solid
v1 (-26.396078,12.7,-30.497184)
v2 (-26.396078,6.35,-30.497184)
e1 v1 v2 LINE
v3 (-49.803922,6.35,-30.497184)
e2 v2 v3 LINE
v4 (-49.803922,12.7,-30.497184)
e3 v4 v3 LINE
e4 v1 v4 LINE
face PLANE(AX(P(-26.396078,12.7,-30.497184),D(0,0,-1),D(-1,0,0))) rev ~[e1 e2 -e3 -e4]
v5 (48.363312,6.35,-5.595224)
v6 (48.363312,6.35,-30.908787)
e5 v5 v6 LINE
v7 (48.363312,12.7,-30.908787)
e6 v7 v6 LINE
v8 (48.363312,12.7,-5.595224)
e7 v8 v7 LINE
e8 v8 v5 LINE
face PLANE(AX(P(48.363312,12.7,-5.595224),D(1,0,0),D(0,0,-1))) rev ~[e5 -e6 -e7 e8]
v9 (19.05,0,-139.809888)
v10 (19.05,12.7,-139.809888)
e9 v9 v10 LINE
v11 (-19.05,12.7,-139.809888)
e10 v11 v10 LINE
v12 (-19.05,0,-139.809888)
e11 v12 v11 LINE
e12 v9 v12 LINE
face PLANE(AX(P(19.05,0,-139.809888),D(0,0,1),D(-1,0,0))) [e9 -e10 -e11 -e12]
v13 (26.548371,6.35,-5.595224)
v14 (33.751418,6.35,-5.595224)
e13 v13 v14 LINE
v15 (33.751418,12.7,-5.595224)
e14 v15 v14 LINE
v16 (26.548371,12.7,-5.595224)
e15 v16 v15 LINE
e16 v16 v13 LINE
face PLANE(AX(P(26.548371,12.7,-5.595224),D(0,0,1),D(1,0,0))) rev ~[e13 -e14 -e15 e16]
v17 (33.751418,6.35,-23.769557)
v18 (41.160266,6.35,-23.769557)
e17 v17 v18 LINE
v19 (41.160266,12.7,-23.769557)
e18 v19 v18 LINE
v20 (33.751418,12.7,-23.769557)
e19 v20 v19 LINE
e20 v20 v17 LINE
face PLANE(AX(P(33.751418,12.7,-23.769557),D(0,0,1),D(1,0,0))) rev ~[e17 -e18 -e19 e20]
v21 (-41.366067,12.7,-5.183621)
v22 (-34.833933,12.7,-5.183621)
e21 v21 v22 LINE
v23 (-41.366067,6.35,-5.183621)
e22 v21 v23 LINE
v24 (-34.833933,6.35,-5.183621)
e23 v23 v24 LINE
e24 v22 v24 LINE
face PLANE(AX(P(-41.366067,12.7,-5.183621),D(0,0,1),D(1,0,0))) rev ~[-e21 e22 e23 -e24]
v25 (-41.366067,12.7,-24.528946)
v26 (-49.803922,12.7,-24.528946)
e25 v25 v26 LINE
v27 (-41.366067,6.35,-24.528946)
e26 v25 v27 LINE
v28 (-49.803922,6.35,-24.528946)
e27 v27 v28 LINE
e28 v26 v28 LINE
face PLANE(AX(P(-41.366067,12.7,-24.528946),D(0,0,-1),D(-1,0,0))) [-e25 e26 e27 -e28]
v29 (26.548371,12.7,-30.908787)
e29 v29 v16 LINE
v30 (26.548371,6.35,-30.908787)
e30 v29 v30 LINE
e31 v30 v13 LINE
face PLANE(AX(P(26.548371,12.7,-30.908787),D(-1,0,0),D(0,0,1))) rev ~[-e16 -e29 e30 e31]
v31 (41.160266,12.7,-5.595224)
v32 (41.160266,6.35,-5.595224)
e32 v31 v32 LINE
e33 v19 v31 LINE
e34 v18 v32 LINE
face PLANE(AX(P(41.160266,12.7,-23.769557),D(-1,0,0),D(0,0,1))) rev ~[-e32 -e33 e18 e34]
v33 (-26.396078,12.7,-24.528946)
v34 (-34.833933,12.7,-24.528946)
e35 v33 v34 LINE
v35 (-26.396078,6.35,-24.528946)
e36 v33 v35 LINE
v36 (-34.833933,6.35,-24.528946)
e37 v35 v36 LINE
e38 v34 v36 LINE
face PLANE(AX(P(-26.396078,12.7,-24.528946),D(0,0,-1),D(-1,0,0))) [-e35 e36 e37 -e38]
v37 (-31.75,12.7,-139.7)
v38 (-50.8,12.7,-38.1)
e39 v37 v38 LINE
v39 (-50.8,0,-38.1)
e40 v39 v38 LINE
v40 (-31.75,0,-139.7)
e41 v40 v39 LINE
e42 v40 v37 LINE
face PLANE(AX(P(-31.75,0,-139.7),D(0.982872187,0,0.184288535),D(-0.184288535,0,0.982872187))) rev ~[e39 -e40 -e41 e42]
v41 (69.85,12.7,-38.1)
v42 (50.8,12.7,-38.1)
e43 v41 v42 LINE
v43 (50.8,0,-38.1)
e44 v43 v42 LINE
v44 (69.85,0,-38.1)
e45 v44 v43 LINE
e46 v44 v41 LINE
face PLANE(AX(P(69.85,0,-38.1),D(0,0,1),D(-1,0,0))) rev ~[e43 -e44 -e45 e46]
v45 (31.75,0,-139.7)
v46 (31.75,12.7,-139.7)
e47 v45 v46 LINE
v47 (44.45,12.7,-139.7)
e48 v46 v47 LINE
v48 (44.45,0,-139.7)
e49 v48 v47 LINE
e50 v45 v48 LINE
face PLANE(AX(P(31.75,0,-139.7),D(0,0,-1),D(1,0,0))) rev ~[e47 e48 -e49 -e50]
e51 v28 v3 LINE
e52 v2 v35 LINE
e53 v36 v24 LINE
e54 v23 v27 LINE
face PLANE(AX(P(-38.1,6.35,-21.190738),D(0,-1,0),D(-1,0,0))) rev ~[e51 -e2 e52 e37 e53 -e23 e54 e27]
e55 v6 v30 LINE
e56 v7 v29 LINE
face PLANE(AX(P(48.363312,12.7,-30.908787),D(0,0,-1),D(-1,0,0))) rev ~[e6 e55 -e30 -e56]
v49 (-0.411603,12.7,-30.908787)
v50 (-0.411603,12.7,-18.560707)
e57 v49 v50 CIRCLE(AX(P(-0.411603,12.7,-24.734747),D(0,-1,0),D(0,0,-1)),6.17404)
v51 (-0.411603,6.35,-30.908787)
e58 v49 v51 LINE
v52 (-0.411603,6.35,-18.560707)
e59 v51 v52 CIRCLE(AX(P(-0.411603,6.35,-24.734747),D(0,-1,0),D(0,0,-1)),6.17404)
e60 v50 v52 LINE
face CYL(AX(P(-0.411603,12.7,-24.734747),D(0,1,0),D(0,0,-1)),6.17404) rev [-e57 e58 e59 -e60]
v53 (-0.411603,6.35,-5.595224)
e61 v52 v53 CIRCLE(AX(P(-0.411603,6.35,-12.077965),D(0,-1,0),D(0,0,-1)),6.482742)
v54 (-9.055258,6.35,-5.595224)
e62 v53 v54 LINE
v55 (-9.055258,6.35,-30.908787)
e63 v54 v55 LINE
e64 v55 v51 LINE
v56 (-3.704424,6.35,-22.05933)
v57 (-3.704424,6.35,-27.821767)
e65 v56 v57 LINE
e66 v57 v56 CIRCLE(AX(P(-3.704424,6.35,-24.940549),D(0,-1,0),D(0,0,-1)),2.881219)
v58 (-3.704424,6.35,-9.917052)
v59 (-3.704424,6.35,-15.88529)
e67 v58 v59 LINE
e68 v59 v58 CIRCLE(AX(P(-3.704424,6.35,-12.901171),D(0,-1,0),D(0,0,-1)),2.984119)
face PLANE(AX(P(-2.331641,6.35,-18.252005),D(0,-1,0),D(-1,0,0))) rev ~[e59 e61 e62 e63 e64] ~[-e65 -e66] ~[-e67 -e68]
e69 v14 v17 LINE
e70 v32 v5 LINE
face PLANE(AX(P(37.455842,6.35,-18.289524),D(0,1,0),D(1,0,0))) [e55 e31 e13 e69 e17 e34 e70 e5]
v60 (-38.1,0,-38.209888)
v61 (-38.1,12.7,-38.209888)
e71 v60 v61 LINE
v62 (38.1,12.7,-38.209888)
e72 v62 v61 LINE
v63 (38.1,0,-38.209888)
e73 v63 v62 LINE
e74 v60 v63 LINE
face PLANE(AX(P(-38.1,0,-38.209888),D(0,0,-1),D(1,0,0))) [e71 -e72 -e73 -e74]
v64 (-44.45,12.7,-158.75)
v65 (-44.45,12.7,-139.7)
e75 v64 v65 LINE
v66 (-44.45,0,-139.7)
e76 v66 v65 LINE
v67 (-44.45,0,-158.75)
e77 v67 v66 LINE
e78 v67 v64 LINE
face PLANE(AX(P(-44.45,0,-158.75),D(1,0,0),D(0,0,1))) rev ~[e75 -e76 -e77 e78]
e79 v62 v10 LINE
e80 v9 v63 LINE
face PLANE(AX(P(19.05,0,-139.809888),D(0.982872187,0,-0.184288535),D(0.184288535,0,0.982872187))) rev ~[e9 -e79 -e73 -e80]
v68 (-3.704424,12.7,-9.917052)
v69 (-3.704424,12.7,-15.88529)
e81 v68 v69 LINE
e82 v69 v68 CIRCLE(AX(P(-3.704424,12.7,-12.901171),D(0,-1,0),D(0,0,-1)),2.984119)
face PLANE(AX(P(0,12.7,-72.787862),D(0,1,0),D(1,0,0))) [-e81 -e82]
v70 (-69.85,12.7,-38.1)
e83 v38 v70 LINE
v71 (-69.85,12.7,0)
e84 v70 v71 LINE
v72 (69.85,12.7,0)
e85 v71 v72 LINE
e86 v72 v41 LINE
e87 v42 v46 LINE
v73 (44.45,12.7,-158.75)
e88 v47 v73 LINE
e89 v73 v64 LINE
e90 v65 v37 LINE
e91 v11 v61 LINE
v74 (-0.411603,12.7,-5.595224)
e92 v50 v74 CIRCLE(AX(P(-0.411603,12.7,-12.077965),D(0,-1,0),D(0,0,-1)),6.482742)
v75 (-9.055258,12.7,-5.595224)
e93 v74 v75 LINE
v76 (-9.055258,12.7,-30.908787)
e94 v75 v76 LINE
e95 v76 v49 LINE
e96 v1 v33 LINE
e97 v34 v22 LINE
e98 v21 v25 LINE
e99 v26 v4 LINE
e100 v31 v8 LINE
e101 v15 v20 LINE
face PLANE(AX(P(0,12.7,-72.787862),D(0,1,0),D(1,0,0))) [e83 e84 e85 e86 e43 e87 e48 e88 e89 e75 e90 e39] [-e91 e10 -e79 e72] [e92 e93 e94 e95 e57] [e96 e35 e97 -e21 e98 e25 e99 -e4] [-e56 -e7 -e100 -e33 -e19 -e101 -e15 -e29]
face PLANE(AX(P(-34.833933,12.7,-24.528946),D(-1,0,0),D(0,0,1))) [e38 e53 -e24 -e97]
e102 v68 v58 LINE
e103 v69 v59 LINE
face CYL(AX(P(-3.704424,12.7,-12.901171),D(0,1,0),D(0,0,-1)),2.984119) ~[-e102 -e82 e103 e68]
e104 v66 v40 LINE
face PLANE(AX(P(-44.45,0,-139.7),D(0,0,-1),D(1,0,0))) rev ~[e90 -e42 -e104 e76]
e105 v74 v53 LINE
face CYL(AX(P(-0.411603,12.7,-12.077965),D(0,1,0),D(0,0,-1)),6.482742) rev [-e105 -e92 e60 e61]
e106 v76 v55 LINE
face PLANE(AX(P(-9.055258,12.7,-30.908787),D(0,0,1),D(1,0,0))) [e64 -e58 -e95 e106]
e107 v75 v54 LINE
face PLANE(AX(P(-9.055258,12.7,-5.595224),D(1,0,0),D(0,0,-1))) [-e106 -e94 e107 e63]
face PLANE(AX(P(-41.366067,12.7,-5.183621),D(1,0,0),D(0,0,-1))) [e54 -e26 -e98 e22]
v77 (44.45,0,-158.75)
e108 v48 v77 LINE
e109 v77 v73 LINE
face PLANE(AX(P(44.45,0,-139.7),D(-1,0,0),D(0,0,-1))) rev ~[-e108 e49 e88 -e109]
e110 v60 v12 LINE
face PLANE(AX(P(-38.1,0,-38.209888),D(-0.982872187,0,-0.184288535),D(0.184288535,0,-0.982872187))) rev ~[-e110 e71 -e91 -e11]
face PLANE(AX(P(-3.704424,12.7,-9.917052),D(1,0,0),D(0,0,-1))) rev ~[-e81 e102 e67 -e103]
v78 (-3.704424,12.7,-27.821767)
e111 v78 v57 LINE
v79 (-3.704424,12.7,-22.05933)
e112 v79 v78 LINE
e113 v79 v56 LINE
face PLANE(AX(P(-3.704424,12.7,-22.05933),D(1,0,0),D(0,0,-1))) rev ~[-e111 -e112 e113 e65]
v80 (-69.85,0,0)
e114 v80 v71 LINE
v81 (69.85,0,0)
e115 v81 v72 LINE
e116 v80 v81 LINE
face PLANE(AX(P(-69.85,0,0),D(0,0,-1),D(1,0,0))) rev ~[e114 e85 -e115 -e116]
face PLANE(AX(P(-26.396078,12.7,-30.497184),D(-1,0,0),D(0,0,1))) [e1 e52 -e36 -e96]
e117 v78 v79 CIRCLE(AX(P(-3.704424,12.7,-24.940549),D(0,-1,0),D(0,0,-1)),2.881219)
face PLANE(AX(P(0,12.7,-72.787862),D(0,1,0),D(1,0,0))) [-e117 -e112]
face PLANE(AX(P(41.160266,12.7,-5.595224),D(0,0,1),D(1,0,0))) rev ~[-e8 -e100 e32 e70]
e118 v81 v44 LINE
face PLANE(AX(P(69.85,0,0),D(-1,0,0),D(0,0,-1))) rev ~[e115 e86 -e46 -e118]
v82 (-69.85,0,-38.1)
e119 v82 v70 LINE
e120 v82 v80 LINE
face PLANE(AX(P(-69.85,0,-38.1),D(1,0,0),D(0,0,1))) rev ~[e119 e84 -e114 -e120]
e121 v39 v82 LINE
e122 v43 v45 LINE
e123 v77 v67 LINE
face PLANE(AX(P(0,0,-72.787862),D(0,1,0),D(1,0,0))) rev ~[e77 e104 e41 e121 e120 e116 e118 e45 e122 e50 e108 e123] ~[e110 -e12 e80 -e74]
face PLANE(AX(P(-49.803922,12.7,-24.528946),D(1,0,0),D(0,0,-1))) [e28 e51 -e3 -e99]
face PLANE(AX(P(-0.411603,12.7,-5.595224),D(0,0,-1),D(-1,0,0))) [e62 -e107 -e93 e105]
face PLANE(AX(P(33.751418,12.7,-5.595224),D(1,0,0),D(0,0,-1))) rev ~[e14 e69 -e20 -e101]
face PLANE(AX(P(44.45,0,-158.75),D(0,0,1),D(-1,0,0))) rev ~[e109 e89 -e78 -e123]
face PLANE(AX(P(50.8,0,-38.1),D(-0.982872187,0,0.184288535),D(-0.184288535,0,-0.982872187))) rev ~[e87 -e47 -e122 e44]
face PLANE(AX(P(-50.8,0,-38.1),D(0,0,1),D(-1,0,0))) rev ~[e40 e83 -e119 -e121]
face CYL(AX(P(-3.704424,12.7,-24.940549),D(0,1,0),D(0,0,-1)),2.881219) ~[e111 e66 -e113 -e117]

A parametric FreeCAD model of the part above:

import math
import FreeCAD as App
import Part
import Sketcher
Q = App.Units.Quantity

doc = App.newDocument("Part")
body = doc.addObject("PartDesign::Body", "Body")

# Sketch on XZ plane
sketch1 = doc.addObject("Sketcher::SketchObject", "Sketch")
body.addObject(sketch1)
sketch1.AttachmentSupport = (doc.XZ_Plane, [""])
sketch1.MapMode = "FlatFace"
sketch1.addGeometry([
    Part.LineSegment(App.Vector(-70, 0, 0), App.Vector(70, 0, 0)),  # 0
    Part.LineSegment(App.Vector(70, 0, 0), App.Vector(70, -38, 0)),  # 1
    Part.LineSegment(App.Vector(70, -38, 0), App.Vector(51, -38, 0)),  # 2
    Part.LineSegment(App.Vector(51, -38, 0), App.Vector(32, -140, 0)),  # 3
    Part.LineSegment(App.Vector(32, -140, 0), App.Vector(44, -140, 0)),  # 4
    Part.LineSegment(App.Vector(44, -140, 0), App.Vector(44, -159, 0)),  # 5
    Part.LineSegment(App.Vector(44, -159, 0), App.Vector(-44, -159, 0)),  # 6
    Part.LineSegment(App.Vector(-44, -159, 0), App.Vector(-44, -140, 0)),  # 7
    Part.LineSegment(App.Vector(-44, -140, 0), App.Vector(-32, -140, 0)),  # 8
    Part.LineSegment(App.Vector(-32, -140, 0), App.Vector(-51, -38, 0)),  # 9
    Part.LineSegment(App.Vector(-51, -38, 0), App.Vector(-70, -38, 0)),  # 10
    Part.LineSegment(App.Vector(-70, -38, 0), App.Vector(-70, 0, 0)),  # 11
], False)
sketch1.addConstraint([
    Sketcher.Constraint("Coincident", 0, 2, 1, 1),
    Sketcher.Constraint("Coincident", 1, 2, 2, 1),
    Sketcher.Constraint("Coincident", 2, 2, 3, 1),
    Sketcher.Constraint("Coincident", 3, 2, 4, 1),
    Sketcher.Constraint("Coincident", 4, 2, 5, 1),
    Sketcher.Constraint("Coincident", 5, 2, 6, 1),
    Sketcher.Constraint("Coincident", 6, 2, 7, 1),
    Sketcher.Constraint("Coincident", 7, 2, 8, 1),
    Sketcher.Constraint("Coincident", 8, 2, 9, 1),
    Sketcher.Constraint("Coincident", 9, 2, 10, 1),
    Sketcher.Constraint("Coincident", 10, 2, 11, 1),
    Sketcher.Constraint("Coincident", 11, 2, 0, 1),
    Sketcher.Constraint("Horizontal", 0),
    Sketcher.Constraint("Vertical", 1),
    Sketcher.Constraint("Horizontal", 2),
    Sketcher.Constraint("Horizontal", 4),
    Sketcher.Constraint("Vertical", 5),
    Sketcher.Constraint("Horizontal", 6),
    Sketcher.Constraint("Vertical", 7),
    Sketcher.Constraint("Horizontal", 8),
    Sketcher.Constraint("Horizontal", 10),
    Sketcher.Constraint("Vertical", 11),
    Sketcher.Constraint("Symmetric", 0, 2, 11, 2, -1, 1),
    Sketcher.Constraint("Symmetric", 4, 2, 7, 2, -2),
    Sketcher.Constraint("Symmetric", 2, 2, 9, 2, -2),
    Sketcher.Constraint("Equal", 4, 8),
    Sketcher.Constraint("Equal", 10, 5),
    Sketcher.Constraint("DistanceX", 0, 1, 0, 2, Q("5.5 in")),
    Sketcher.Constraint("DistanceX", 4, 1, 4, 2, Q("0.5 in")),
    Sketcher.Constraint("DistanceX", 6, 2, 6, 1, Q("3.5 in")),
    Sketcher.Constraint("DistanceY", 1, 2, 1, 1, Q("1.5 in")),
    Sketcher.Constraint("DistanceX", -1, 1, 2, 2, Q("2 in")),
    Sketcher.Constraint("DistanceY", 3, 2, 2, 2, Q("4 in")),
])
pad1 = doc.addObject("PartDesign::Pad", "Pad")
body.addObject(pad1)
pad1.Profile = sketch1
pad1.Length = Q("0.5 in")
pad1.Reversed = True

# Sketch on XZ plane
sketch2 = doc.addObject("Sketcher::SketchObject", "Sketch001")
body.addObject(sketch2)
sketch2.AttachmentSupport = (doc.XZ_Plane, [""])
sketch2.MapMode = "FlatFace"
sketch2.addGeometry([
    Part.LineSegment(App.Vector(-38, -38, 0), App.Vector(38, -38, 0)),
    Part.LineSegment(App.Vector(38, -38, 0), App.Vector(19, -140, 0)),
    Part.LineSegment(App.Vector(19, -140, 0), App.Vector(-19, -140, 0)),
    Part.LineSegment(App.Vector(-19, -140, 0), App.Vector(-38, -38, 0)),
], False)
sketch2.addConstraint([
    Sketcher.Constraint("Coincident", 0, 2, 1, 1),
    Sketcher.Constraint("Coincident", 1, 2, 2, 1),
    Sketcher.Constraint("Coincident", 2, 2, 3, 1),
    Sketcher.Constraint("Coincident", 3, 2, 0, 1),
    Sketcher.Constraint("Horizontal", 0),
    Sketcher.Constraint("Horizontal", 2),
    Sketcher.Constraint("Equal", 1, 3),
    Sketcher.Constraint("DistanceX", 0, 1, 0, 2, Q("3 in")),
    Sketcher.Constraint("DistanceX", 2, 2, 2, 1, Q("1.5 in")),
    Sketcher.Constraint("DistanceY", 1, 2, 0, 2, Q("4 in")),
    Sketcher.Constraint("DistanceX", -1, 1, 0, 2, Q("1.5 in")),
    Sketcher.Constraint("DistanceY", 0, 2, -1, 1, 38.209888),
])
pocket1 = doc.addObject("PartDesign::Pocket", "Pocket")
body.addObject(pocket1)
pocket1.Profile = sketch2
pocket1.Type = "ThroughAll"
pocket1.Midplane = True

# Sketch on XZ plane
sketch3 = doc.addObject("Sketcher::SketchObject", "Sketch002")
body.addObject(sketch3)
sketch3.AttachmentSupport = (doc.XZ_Plane, [""])
sketch3.MapMode = "FlatFace"
sketch3.AttachmentOffset = App.Placement(App.Vector(0, 0, -0.5 * 25.4), App.Rotation())
sketch3.addGeometry([
    Part.LineSegment(App.Vector(-26, -30, 0), App.Vector(-50, -30, 0)),  # 0
    Part.LineSegment(App.Vector(-50, -30, 0), App.Vector(-50, -25, 0)),  # 1
    Part.LineSegment(App.Vector(-50, -25, 0), App.Vector(-41, -25, 0)),  # 2
    Part.LineSegment(App.Vector(-41, -25, 0), App.Vector(-41, -5, 0)),  # 3
    Part.LineSegment(App.Vector(-41, -5, 0), App.Vector(-35, -5, 0)),  # 4
    Part.LineSegment(App.Vector(-35, -5, 0), App.Vector(-35, -25, 0)),  # 5
    Part.LineSegment(App.Vector(-35, -25, 0), App.Vector(-26, -25, 0)),  # 6
    Part.LineSegment(App.Vector(-26, -25, 0), App.Vector(-26, -30, 0)),  # 7
], False)
sketch3.addConstraint([
    Sketcher.Constraint("Coincident", 0, 2, 1, 1),
    Sketcher.Constraint("Coincident", 1, 2, 2, 1),
    Sketcher.Constraint("Coincident", 2, 2, 3, 1),
    Sketcher.Constraint("Coincident", 3, 2, 4, 1),
    Sketcher.Constraint("Coincident", 4, 2, 5, 1),
    Sketcher.Constraint("Coincident", 5, 2, 6, 1),
    Sketcher.Constraint("Coincident", 6, 2, 7, 1),
    Sketcher.Constraint("Coincident", 7, 2, 0, 1),
    Sketcher.Constraint("Horizontal", 0),
    Sketcher.Constraint("Vertical", 1),
    Sketcher.Constraint("Horizontal", 2),
    Sketcher.Constraint("Vertical", 3),
    Sketcher.Constraint("Horizontal", 4),
    Sketcher.Constraint("Vertical", 5),
    Sketcher.Constraint("Horizontal", 6),
    Sketcher.Constraint("Vertical", 7),
    Sketcher.Constraint("Horizontal", 2, 2, 5, 2),
    Sketcher.Constraint("Equal", 2, 6),
    Sketcher.Constraint("DistanceY", 1, 1, 1, 2, 5.968239),
    Sketcher.Constraint("DistanceX", 0, 2, 0, 1, 23.407843),
    Sketcher.Constraint("DistanceX", 2, 1, 2, 2, 8.437854),
    Sketcher.Constraint("DistanceY", 3, 1, 3, 2, 19.345325),
    Sketcher.Constraint("DistanceX", 0, 2, -1, 1, 49.803922),
    Sketcher.Constraint("DistanceY", 3, 2, -1, 1, 5.183621),
])
pocket2 = doc.addObject("PartDesign::Pocket", "Pocket001")
body.addObject(pocket2)
pocket2.Profile = sketch3
pocket2.Length = Q("0.25 in")
pocket2.Reversed = True

# Sketch on XZ plane
sketch4 = doc.addObject("Sketcher::SketchObject", "Sketch003")
body.addObject(sketch4)
sketch4.AttachmentSupport = (doc.XZ_Plane, [""])
sketch4.MapMode = "FlatFace"
sketch4.AttachmentOffset = App.Placement(App.Vector(0, 0, -0.5 * 25.4), App.Rotation())
sketch4.addGeometry([
    Part.LineSegment(App.Vector(-9.1, -30.9, 0), App.Vector(-9.1, -5.6, 0)),  # 0
    Part.LineSegment(App.Vector(-9.1, -5.6, 0), App.Vector(-0.4, -5.6, 0)),  # 1
    Part.ArcOfCircle(Part.Circle(App.Vector(-0.4, -12.1, 0), App.Vector(0, 0, 1), 6.5), math.radians(-90), math.radians(90)),  # 2
    Part.ArcOfCircle(Part.Circle(App.Vector(-0.4, -24.7, 0), App.Vector(0, 0, 1), 6.2), math.radians(-90), math.radians(90)),  # 3
    Part.LineSegment(App.Vector(-0.4, -30.9, 0), App.Vector(-9.1, -30.9, 0)),  # 4
    Part.LineSegment(App.Vector(-3.7, -9.9, 0), App.Vector(-3.7, -15.9, 0)),  # 5
    Part.ArcOfCircle(Part.Circle(App.Vector(-3.7, -12.9, 0), App.Vector(0, 0, 1), 3), math.radians(-90), math.radians(90)),  # 6
    Part.LineSegment(App.Vector(-3.7, -22.1, 0), App.Vector(-3.7, -27.8, 0)),  # 7
    Part.ArcOfCircle(Part.Circle(App.Vector(-3.7, -24.9, 0), App.Vector(0, 0, 1), 2.9), math.radians(-90), math.radians(90)),  # 8
], False)
sketch4.addConstraint([
    Sketcher.Constraint("Coincident", 0, 2, 1, 1),
    Sketcher.Constraint("Tangent", 1, 2, 2, 2),
    Sketcher.Constraint("Tangent", 2, 1, 3, 2),
    Sketcher.Constraint("Tangent", 3, 1, 4, 1),
    Sketcher.Constraint("Coincident", 4, 2, 0, 1),
    Sketcher.Constraint("Coincident", 5, 1, 6, 2),
    Sketcher.Constraint("Coincident", 6, 1, 5, 2),
    Sketcher.Constraint("Coincident", 7, 1, 8, 2),
    Sketcher.Constraint("Coincident", 8, 1, 7, 2),
    Sketcher.Constraint("Vertical", 0),
    Sketcher.Constraint("Horizontal", 1),
    Sketcher.Constraint("Horizontal", 4),
    Sketcher.Constraint("Vertical", 5),
    Sketcher.Constraint("Vertical", 7),
    Sketcher.Constraint("Vertical", 2, 3, 3, 3),
    Sketcher.Constraint("Vertical", 6, 3, 8, 3),
    Sketcher.Constraint("Vertical", 8, 3, 5, 1),
    Sketcher.Constraint("Vertical", 6, 1, 7, 1),
    Sketcher.Constraint("Radius", 2, 6.482742),
    Sketcher.Constraint("Radius", 3, 6.17404),
    Sketcher.Constraint("Radius", 6, 2.984119),
    Sketcher.Constraint("Radius", 8, 2.881219),
    Sketcher.Constraint("DistanceY", 8, 3, 3, 3, 0.205801),
    Sketcher.Constraint("DistanceX", 1, 1, 1, 2, 8.643656),
    Sketcher.Constraint("DistanceY", 6, 3, -1, 1, 12.901171),
    Sketcher.Constraint("DistanceY", 8, 3, -1, 1, 24.940549),
    Sketcher.Constraint("DistanceX", 0, 2, -1, 1, 9.055258),
    Sketcher.Constraint("DistanceX", 6, 3, 2, 3, 3.292821),
])
pocket3 = doc.addObject("PartDesign::Pocket", "Pocket002")
body.addObject(pocket3)
pocket3.Profile = sketch4
pocket3.Length = Q("0.25 in")
pocket3.Reversed = True

# Sketch on XZ plane
sketch5 = doc.addObject("Sketcher::SketchObject", "Sketch004")
body.addObject(sketch5)
sketch5.AttachmentSupport = (doc.XZ_Plane, [""])
sketch5.MapMode = "FlatFace"
sketch5.AttachmentOffset = App.Placement(App.Vector(0, 0, -0.5 * 25.4), App.Rotation())
sketch5.addGeometry([
    Part.LineSegment(App.Vector(27, -6, 0), App.Vector(34, -6, 0)),  # 0
    Part.LineSegment(App.Vector(34, -6, 0), App.Vector(34, -24, 0)),  # 1
    Part.LineSegment(App.Vector(34, -24, 0), App.Vector(41, -24, 0)),  # 2
    Part.LineSegment(App.Vector(41, -24, 0), App.Vector(41, -6, 0)),  # 3
    Part.LineSegment(App.Vector(41, -6, 0), App.Vector(48, -6, 0)),  # 4
    Part.LineSegment(App.Vector(48, -6, 0), App.Vector(48, -31, 0)),  # 5
    Part.LineSegment(App.Vector(48, -31, 0), App.Vector(27, -31, 0)),  # 6
    Part.LineSegment(App.Vector(27, -31, 0), App.Vector(27, -6, 0)),  # 7
], False)
sketch5.addConstraint([
    Sketcher.Constraint("Coincident", 0, 2, 1, 1),
    Sketcher.Constraint("Coincident", 1, 2, 2, 1),
    Sketcher.Constraint("Coincident", 2, 2, 3, 1),
    Sketcher.Constraint("Coincident", 3, 2, 4, 1),
    Sketcher.Constraint("Coincident", 4, 2, 5, 1),
    Sketcher.Constraint("Coincident", 5, 2, 6, 1),
    Sketcher.Constraint("Coincident", 6, 2, 7, 1),
    Sketcher.Constraint("Coincident", 7, 2, 0, 1),
    Sketcher.Constraint("Horizontal", 0),
    Sketcher.Constraint("Vertical", 1),
    Sketcher.Constraint("Horizontal", 2),
    Sketcher.Constraint("Vertical", 3),
    Sketcher.Constraint("Horizontal", 4),
    Sketcher.Constraint("Vertical", 5),
    Sketcher.Constraint("Horizontal", 6),
    Sketcher.Constraint("Vertical", 7),
    Sketcher.Constraint("Horizontal", 0, 2, 3, 2),
    Sketcher.Constraint("Equal", 0, 4),
    Sketcher.Constraint("DistanceX", 6, 2, 6, 1, 21.814941),
    Sketcher.Constraint("DistanceX", 0, 1, 0, 2, 7.203047),
    Sketcher.Constraint("DistanceY", 1, 2, 1, 1, 18.174333),
    Sketcher.Constraint("DistanceY", 5, 2, 5, 1, 25.313563),
    Sketcher.Constraint("DistanceX", -1, 1, 6, 2, 26.548371),
    Sketcher.Constraint("DistanceY", 0, 2, -1, 1, 5.595224),
])
pocket4 = doc.addObject("PartDesign::Pocket", "Pocket003")
body.addObject(pocket4)
pocket4.Profile = sketch5
pocket4.Length = Q("0.25 in")
pocket4.Reversed = True

doc.recompute()
